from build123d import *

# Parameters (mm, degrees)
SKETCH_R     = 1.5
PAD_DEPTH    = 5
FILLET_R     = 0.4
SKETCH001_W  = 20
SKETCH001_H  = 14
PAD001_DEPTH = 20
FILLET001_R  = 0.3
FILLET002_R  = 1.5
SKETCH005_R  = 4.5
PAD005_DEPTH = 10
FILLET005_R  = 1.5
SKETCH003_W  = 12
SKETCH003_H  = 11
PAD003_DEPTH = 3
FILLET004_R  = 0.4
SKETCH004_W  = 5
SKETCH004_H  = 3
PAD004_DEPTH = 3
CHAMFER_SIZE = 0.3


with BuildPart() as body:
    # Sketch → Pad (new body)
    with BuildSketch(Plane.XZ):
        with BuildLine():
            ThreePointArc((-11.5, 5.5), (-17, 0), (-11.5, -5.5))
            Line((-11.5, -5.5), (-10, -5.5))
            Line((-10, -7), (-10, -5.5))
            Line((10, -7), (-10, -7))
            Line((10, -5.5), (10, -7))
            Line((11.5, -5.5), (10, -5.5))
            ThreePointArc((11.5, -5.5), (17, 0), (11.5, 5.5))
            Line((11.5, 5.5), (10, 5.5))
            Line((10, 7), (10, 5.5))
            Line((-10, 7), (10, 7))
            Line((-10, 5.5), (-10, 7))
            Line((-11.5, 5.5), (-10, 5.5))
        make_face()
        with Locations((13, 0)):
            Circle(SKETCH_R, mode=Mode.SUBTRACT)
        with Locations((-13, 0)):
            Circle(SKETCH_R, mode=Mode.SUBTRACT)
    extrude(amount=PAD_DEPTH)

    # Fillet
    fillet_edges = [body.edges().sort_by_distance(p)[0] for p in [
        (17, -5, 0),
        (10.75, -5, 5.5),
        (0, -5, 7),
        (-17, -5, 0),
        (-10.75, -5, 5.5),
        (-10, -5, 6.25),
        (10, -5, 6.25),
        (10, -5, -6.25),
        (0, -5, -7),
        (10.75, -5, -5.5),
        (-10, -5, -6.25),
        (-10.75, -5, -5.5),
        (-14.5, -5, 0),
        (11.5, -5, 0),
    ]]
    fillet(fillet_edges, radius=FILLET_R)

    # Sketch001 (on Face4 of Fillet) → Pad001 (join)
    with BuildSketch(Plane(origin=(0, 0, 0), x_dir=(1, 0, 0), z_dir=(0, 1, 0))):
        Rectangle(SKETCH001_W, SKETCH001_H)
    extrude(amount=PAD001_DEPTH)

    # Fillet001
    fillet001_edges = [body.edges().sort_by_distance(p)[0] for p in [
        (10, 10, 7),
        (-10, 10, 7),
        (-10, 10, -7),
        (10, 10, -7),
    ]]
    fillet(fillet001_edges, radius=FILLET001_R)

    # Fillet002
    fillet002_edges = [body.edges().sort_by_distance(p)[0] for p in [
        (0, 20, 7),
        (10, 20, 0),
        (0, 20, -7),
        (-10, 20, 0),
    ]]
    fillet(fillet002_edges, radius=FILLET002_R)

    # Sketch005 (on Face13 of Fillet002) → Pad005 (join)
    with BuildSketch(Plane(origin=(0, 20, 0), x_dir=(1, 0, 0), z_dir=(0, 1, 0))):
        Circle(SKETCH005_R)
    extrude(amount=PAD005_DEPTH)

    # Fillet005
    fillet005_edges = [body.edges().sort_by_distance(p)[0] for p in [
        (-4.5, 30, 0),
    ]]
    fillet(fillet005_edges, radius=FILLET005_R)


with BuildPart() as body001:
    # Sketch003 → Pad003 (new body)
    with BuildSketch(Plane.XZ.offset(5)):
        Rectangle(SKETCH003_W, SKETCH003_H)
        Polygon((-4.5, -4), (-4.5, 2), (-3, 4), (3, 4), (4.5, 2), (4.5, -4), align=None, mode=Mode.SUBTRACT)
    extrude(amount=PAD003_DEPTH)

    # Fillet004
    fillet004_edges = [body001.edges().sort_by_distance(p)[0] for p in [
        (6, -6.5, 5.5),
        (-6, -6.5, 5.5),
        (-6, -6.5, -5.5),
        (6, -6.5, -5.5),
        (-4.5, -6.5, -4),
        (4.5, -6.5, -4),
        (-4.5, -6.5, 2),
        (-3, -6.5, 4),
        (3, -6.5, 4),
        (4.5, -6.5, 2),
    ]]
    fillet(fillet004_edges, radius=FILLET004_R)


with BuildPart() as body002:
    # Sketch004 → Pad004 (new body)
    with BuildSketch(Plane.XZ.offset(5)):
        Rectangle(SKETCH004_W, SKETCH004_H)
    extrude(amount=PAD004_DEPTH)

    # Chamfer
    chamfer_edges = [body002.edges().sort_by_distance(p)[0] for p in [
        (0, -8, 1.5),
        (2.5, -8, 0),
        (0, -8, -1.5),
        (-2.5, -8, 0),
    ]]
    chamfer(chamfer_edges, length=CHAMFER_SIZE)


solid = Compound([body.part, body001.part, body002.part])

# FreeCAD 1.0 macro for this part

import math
import FreeCAD as App
import Part
import Sketcher
Q = App.Units.Quantity


def edges_at(feature, points):
    """Names of the edges that pass closest to the given points."""
    edges = feature.Shape.Edges
    near = lambda p: min(range(len(edges)), key=lambda i: edges[i].distToShape(Part.Vertex(*p))[0])
    return sorted({f"Edge{near(p) + 1}" for p in points})


def add_polygon(sketch, points):
    """Adds a closed chain of lines whose ends are joined by coincident constraints."""
    first, n = sketch.GeometryCount, len(points)
    for a, b in zip(points, points[1:] + points[:1]):
        sketch.addGeometry(Part.LineSegment(App.Vector(*a, 0), App.Vector(*b, 0)), False)
    for i in range(n):
        sketch.addConstraint(Sketcher.Constraint("Coincident", first + i, 2, first + (i + 1) % n, 1))

doc = App.newDocument("Part")
body = doc.addObject("PartDesign::Body", "Body")

sketch1 = doc.addObject("Sketcher::SketchObject", "Sketch")
body.addObject(sketch1)
sketch1.AttachmentSupport = (doc.XZ_Plane, [""])
sketch1.MapMode = "FlatFace"
sketch1.addGeometry(Part.ArcOfCircle(Part.Circle(App.Vector(-11.5, 0, 0), App.Vector(0, 0, 1), 5.5), math.radians(90), math.radians(270)), False)
sketch1.addGeometry(Part.LineSegment(App.Vector(-11.5, -5.5, 0), App.Vector(-10, -5.5, 0)), False)
sketch1.addGeometry(Part.LineSegment(App.Vector(-10, -5.5, 0), App.Vector(-10, -7, 0)), False)
sketch1.addGeometry(Part.LineSegment(App.Vector(-10, -7, 0), App.Vector(10, -7, 0)), False)
sketch1.addGeometry(Part.LineSegment(App.Vector(10, -7, 0), App.Vector(10, -5.5, 0)), False)
sketch1.addGeometry(Part.LineSegment(App.Vector(10, -5.5, 0), App.Vector(11.5, -5.5, 0)), False)
sketch1.addGeometry(Part.ArcOfCircle(Part.Circle(App.Vector(11.5, 0, 0), App.Vector(0, 0, 1), 5.5), math.radians(-90), math.radians(90)), False)
sketch1.addGeometry(Part.LineSegment(App.Vector(11.5, 5.5, 0), App.Vector(10, 5.5, 0)), False)
sketch1.addGeometry(Part.LineSegment(App.Vector(10, 5.5, 0), App.Vector(10, 7, 0)), False)
sketch1.addGeometry(Part.LineSegment(App.Vector(10, 7, 0), App.Vector(-10, 7, 0)), False)
sketch1.addGeometry(Part.LineSegment(App.Vector(-10, 7, 0), App.Vector(-10, 5.5, 0)), False)
sketch1.addGeometry(Part.LineSegment(App.Vector(-10, 5.5, 0), App.Vector(-11.5, 5.5, 0)), False)
sketch1.addGeometry(Part.Circle(App.Vector(-13, 0, 0), App.Vector(0, 0, 1), 1.5), False)
sketch1.addGeometry(Part.Circle(App.Vector(13, 0, 0), App.Vector(0, 0, 1), 1.5), False)
sketch1.addConstraint(Sketcher.Constraint("Tangent", 0, 2, 1, 1))
sketch1.addConstraint(Sketcher.Constraint("Coincident", 1, 2, 2, 1))
sketch1.addConstraint(Sketcher.Constraint("Coincident", 2, 2, 3, 1))
sketch1.addConstraint(Sketcher.Constraint("Coincident", 3, 2, 4, 1))
sketch1.addConstraint(Sketcher.Constraint("Coincident", 4, 2, 5, 1))
sketch1.addConstraint(Sketcher.Constraint("Tangent", 5, 2, 6, 1))
sketch1.addConstraint(Sketcher.Constraint("Tangent", 6, 2, 7, 1))
sketch1.addConstraint(Sketcher.Constraint("Coincident", 7, 2, 8, 1))
sketch1.addConstraint(Sketcher.Constraint("Coincident", 8, 2, 9, 1))
sketch1.addConstraint(Sketcher.Constraint("Coincident", 9, 2, 10, 1))
sketch1.addConstraint(Sketcher.Constraint("Coincident", 10, 2, 11, 1))
sketch1.addConstraint(Sketcher.Constraint("Tangent", 11, 2, 0, 1))
sketch1.addConstraint(Sketcher.Constraint("Horizontal", 1))
sketch1.addConstraint(Sketcher.Constraint("Vertical", 2))
sketch1.addConstraint(Sketcher.Constraint("Horizontal", 3))
sketch1.addConstraint(Sketcher.Constraint("Vertical", 4))
sketch1.addConstraint(Sketcher.Constraint("Horizontal", 5))
sketch1.addConstraint(Sketcher.Constraint("Horizontal", 7))
sketch1.addConstraint(Sketcher.Constraint("Vertical", 8))
sketch1.addConstraint(Sketcher.Constraint("Horizontal", 9))
sketch1.addConstraint(Sketcher.Constraint("Vertical", 10))
sketch1.addConstraint(Sketcher.Constraint("Horizontal", 11))
sketch1.addConstraint(Sketcher.Constraint("Equal", 0, 6))
sketch1.addConstraint(Sketcher.Constraint("Equal", 12, 13))
sketch1.addConstraint(Sketcher.Constraint("Symmetric", 0, 3, 6, 3, -1, 1))
sketch1.addConstraint(Sketcher.Constraint("Symmetric", 12, 3, 13, 3, -1, 1))
sketch1.addConstraint(Sketcher.Constraint("Symmetric", 2, 2, 8, 2, -1, 1))
sketch1.addConstraint(Sketcher.Constraint("Symmetric", 1, 2, 4, 2, -2))
sketch1.addConstraint(Sketcher.Constraint("PointOnObject", 12, 3, -1))
sketch1.addConstraint(Sketcher.Constraint("Vertical", 2, 2, 9, 2))
sketch1.addConstraint(Sketcher.Constraint("Equal", 11, 2))
sketch1.addConstraint(Sketcher.Constraint("Diameter", 12, Q("3 mm")))
sketch1.addConstraint(Sketcher.Constraint("Radius", 0, Q("5.5 mm")))
sketch1.addConstraint(Sketcher.Constraint("DistanceX", 3, 1, 3, 2, Q("20 mm")))
sketch1.addConstraint(Sketcher.Constraint("DistanceX", 1, 1, 1, 2, Q("1.5 mm")))
sketch1.addConstraint(Sketcher.Constraint("DistanceX", 12, 3, -1, 1, Q("13 mm")))
pad1 = doc.addObject("PartDesign::Pad", "Pad")
body.addObject(pad1)
pad1.Profile = sketch1
pad1.Length = 5
doc.recompute()

fillet = doc.addObject("PartDesign::Fillet", "Fillet")
body.addObject(fillet)
fillet.Base = (pad1, edges_at(pad1, [
    (17, -5, 0),
    (10.75, -5, 5.5),
    (0, -5, 7),
    (-17, -5, 0),
    (-10.75, -5, 5.5),
    (-10, -5, 6.25),
    (10, -5, 6.25),
    (10, -5, -6.25),
    (0, -5, -7),
    (10.75, -5, -5.5),
    (-10, -5, -6.25),
    (-10.75, -5, -5.5),
    (-14.5, -5, 0),
    (11.5, -5, 0),
]))
fillet.Radius = 0.4

sketch2 = doc.addObject("Sketcher::SketchObject", "Sketch001")
body.addObject(sketch2)
sketch2.AttachmentSupport = (doc.XZ_Plane, [""])
sketch2.MapMode = "FlatFace"
add_polygon(sketch2, [(-10, -7), (-10, 7), (10, 7), (10, -7)])
sketch2.addConstraint(Sketcher.Constraint("Vertical", 0))
sketch2.addConstraint(Sketcher.Constraint("Horizontal", 1))
sketch2.addConstraint(Sketcher.Constraint("Vertical", 2))
sketch2.addConstraint(Sketcher.Constraint("Horizontal", 3))
sketch2.addConstraint(Sketcher.Constraint("Symmetric", 0, 2, 2, 2, -1, 1))
sketch2.addConstraint(Sketcher.Constraint("DistanceX", 1, 1, 1, 2, Q("20 mm")))
sketch2.addConstraint(Sketcher.Constraint("DistanceY", 0, 1, 0, 2, Q("14 mm")))
pad2 = doc.addObject("PartDesign::Pad", "Pad001")
body.addObject(pad2)
pad2.Profile = sketch2
pad2.Length = 20
pad2.Reversed = True
doc.recompute()

fillet2 = doc.addObject("PartDesign::Fillet", "Fillet001")
body.addObject(fillet2)
fillet2.Base = (pad2, edges_at(pad2, [
    (10, 7.7, 7),
    (-10, 7.7, 7),
    (-10, 7.7, -7),
    (10, 7.7, -7),
]))
fillet2.Radius = 0.3
doc.recompute()

fillet3 = doc.addObject("PartDesign::Fillet", "Fillet002")
body.addObject(fillet3)
fillet3.Base = (fillet2, edges_at(fillet2, [
    (0, 20, 7),
    (10, 20, 0),
    (0, 20, -7),
    (-10, 20, 0),
]))
fillet3.Radius = 1.5

sketch3 = doc.addObject("Sketcher::SketchObject", "Sketch002")
body.addObject(sketch3)
sketch3.AttachmentSupport = (doc.XZ_Plane, [""])
sketch3.MapMode = "FlatFace"
sketch3.AttachmentOffset = App.Placement(App.Vector(0, 0, -20), App.Rotation())
sketch3.addGeometry(Part.Circle(App.Vector(0, 0, 0), App.Vector(0, 0, 1), 4.5), False)
sketch3.addConstraint(Sketcher.Constraint("Coincident", 0, 3, -1, 1))
sketch3.addConstraint(Sketcher.Constraint("Diameter", 0, Q("9 mm")))
pad3 = doc.addObject("PartDesign::Pad", "Pad002")
body.addObject(pad3)
pad3.Profile = sketch3
pad3.Length = 10
pad3.Reversed = True
doc.recompute()

fillet4 = doc.addObject("PartDesign::Fillet", "Fillet003")
body.addObject(fillet4)
fillet4.Base = (pad3, edges_at(pad3, [(-4.5, 30, 0)]))
fillet4.Radius = 1.5
body2 = doc.addObject("PartDesign::Body", "Body001")

sketch4 = doc.addObject("Sketcher::SketchObject", "Sketch003")
body2.addObject(sketch4)
sketch4.AttachmentSupport = (doc.getObject("XZ_Plane001"), [""])
sketch4.MapMode = "FlatFace"
sketch4.AttachmentOffset = App.Placement(App.Vector(0, 0, 5), App.Rotation())
add_polygon(sketch4, [(-6, 5.5), (-6, -5.5), (6, -5.5), (6, 5.5)])
add_polygon(sketch4, [(4.5, -4), (-4.5, -4), (-4.5, 2), (-3, 4), (3, 4), (4.5, 2)])
sketch4.addConstraint(Sketcher.Constraint("Vertical", 0))
sketch4.addConstraint(Sketcher.Constraint("Horizontal", 1))
sketch4.addConstraint(Sketcher.Constraint("Vertical", 2))
sketch4.addConstraint(Sketcher.Constraint("Horizontal", 3))
sketch4.addConstraint(Sketcher.Constraint("Horizontal", 4))
sketch4.addConstraint(Sketcher.Constraint("Vertical", 5))
sketch4.addConstraint(Sketcher.Constraint("Horizontal", 7))
sketch4.addConstraint(Sketcher.Constraint("Vertical", 9))
sketch4.addConstraint(Sketcher.Constraint("Symmetric", 0, 2, 2, 2, -1, 1))
sketch4.addConstraint(Sketcher.Constraint("Symmetric", 5, 2, 8, 2, -2))
sketch4.addConstraint(Sketcher.Constraint("Equal", 7, 5))
sketch4.addConstraint(Sketcher.Constraint("Equal", 6, 8))
sketch4.addConstraint(Sketcher.Constraint("DistanceX", 1, 1, 1, 2, Q("12 mm")))
sketch4.addConstraint(Sketcher.Constraint("DistanceX", 4, 2, 4, 1, Q("9 mm")))
sketch4.addConstraint(Sketcher.Constraint("DistanceX", 7, 1, 7, 2, Q("6 mm")))
sketch4.addConstraint(Sketcher.Constraint("DistanceY", 0, 2, 0, 1, Q("11 mm")))
sketch4.addConstraint(Sketcher.Constraint("DistanceY", 4, 2, -1, 1, Q("4 mm")))
sketch4.addConstraint(Sketcher.Constraint("DistanceY", -1, 1, 6, 2, Q("4 mm")))
pad4 = doc.addObject("PartDesign::Pad", "Pad003")
body2.addObject(pad4)
pad4.Profile = sketch4
pad4.Length = 3
doc.recompute()

fillet5 = doc.addObject("PartDesign::Fillet", "Fillet004")
body2.addObject(fillet5)
fillet5.Base = (pad4, edges_at(pad4, [
    (6, -6.5, 5.5),
    (-6, -6.5, 5.5),
    (-6, -6.5, -5.5),
    (6, -6.5, -5.5),
    (-4.5, -6.5, -4),
    (4.5, -6.5, -4),
    (-4.5, -6.5, 2),
    (-3, -6.5, 4),
    (3, -6.5, 4),
    (4.5, -6.5, 2),
]))
fillet5.Radius = 0.4
body3 = doc.addObject("PartDesign::Body", "Body002")

sketch5 = doc.addObject("Sketcher::SketchObject", "Sketch004")
body3.addObject(sketch5)
sketch5.AttachmentSupport = (doc.getObject("XZ_Plane002"), [""])
sketch5.MapMode = "FlatFace"
sketch5.AttachmentOffset = App.Placement(App.Vector(0, 0, 5), App.Rotation())
add_polygon(sketch5, [(-2.5, 1.5), (-2.5, -1.5), (2.5, -1.5), (2.5, 1.5)])
sketch5.addConstraint(Sketcher.Constraint("Vertical", 0))
sketch5.addConstraint(Sketcher.Constraint("Horizontal", 1))
sketch5.addConstraint(Sketcher.Constraint("Vertical", 2))
sketch5.addConstraint(Sketcher.Constraint("Horizontal", 3))
sketch5.addConstraint(Sketcher.Constraint("Symmetric", 0, 2, 2, 2, -1, 1))
sketch5.addConstraint(Sketcher.Constraint("DistanceX", 1, 1, 1, 2, Q("5 mm")))
sketch5.addConstraint(Sketcher.Constraint("DistanceY", 0, 2, 0, 1, Q("3 mm")))
pad5 = doc.addObject("PartDesign::Pad", "Pad004")
body3.addObject(pad5)
pad5.Profile = sketch5
pad5.Length = 3
doc.recompute()

chamfer = doc.addObject("PartDesign::Chamfer", "Chamfer")
body3.addObject(chamfer)
chamfer.Base = (pad5, edges_at(pad5, [
    (0, -8, 1.5),
    (2.5, -8, 0),
    (0, -8, -1.5),
    (-2.5, -8, 0),
]))
chamfer.Size = 0.3

doc.recompute()
